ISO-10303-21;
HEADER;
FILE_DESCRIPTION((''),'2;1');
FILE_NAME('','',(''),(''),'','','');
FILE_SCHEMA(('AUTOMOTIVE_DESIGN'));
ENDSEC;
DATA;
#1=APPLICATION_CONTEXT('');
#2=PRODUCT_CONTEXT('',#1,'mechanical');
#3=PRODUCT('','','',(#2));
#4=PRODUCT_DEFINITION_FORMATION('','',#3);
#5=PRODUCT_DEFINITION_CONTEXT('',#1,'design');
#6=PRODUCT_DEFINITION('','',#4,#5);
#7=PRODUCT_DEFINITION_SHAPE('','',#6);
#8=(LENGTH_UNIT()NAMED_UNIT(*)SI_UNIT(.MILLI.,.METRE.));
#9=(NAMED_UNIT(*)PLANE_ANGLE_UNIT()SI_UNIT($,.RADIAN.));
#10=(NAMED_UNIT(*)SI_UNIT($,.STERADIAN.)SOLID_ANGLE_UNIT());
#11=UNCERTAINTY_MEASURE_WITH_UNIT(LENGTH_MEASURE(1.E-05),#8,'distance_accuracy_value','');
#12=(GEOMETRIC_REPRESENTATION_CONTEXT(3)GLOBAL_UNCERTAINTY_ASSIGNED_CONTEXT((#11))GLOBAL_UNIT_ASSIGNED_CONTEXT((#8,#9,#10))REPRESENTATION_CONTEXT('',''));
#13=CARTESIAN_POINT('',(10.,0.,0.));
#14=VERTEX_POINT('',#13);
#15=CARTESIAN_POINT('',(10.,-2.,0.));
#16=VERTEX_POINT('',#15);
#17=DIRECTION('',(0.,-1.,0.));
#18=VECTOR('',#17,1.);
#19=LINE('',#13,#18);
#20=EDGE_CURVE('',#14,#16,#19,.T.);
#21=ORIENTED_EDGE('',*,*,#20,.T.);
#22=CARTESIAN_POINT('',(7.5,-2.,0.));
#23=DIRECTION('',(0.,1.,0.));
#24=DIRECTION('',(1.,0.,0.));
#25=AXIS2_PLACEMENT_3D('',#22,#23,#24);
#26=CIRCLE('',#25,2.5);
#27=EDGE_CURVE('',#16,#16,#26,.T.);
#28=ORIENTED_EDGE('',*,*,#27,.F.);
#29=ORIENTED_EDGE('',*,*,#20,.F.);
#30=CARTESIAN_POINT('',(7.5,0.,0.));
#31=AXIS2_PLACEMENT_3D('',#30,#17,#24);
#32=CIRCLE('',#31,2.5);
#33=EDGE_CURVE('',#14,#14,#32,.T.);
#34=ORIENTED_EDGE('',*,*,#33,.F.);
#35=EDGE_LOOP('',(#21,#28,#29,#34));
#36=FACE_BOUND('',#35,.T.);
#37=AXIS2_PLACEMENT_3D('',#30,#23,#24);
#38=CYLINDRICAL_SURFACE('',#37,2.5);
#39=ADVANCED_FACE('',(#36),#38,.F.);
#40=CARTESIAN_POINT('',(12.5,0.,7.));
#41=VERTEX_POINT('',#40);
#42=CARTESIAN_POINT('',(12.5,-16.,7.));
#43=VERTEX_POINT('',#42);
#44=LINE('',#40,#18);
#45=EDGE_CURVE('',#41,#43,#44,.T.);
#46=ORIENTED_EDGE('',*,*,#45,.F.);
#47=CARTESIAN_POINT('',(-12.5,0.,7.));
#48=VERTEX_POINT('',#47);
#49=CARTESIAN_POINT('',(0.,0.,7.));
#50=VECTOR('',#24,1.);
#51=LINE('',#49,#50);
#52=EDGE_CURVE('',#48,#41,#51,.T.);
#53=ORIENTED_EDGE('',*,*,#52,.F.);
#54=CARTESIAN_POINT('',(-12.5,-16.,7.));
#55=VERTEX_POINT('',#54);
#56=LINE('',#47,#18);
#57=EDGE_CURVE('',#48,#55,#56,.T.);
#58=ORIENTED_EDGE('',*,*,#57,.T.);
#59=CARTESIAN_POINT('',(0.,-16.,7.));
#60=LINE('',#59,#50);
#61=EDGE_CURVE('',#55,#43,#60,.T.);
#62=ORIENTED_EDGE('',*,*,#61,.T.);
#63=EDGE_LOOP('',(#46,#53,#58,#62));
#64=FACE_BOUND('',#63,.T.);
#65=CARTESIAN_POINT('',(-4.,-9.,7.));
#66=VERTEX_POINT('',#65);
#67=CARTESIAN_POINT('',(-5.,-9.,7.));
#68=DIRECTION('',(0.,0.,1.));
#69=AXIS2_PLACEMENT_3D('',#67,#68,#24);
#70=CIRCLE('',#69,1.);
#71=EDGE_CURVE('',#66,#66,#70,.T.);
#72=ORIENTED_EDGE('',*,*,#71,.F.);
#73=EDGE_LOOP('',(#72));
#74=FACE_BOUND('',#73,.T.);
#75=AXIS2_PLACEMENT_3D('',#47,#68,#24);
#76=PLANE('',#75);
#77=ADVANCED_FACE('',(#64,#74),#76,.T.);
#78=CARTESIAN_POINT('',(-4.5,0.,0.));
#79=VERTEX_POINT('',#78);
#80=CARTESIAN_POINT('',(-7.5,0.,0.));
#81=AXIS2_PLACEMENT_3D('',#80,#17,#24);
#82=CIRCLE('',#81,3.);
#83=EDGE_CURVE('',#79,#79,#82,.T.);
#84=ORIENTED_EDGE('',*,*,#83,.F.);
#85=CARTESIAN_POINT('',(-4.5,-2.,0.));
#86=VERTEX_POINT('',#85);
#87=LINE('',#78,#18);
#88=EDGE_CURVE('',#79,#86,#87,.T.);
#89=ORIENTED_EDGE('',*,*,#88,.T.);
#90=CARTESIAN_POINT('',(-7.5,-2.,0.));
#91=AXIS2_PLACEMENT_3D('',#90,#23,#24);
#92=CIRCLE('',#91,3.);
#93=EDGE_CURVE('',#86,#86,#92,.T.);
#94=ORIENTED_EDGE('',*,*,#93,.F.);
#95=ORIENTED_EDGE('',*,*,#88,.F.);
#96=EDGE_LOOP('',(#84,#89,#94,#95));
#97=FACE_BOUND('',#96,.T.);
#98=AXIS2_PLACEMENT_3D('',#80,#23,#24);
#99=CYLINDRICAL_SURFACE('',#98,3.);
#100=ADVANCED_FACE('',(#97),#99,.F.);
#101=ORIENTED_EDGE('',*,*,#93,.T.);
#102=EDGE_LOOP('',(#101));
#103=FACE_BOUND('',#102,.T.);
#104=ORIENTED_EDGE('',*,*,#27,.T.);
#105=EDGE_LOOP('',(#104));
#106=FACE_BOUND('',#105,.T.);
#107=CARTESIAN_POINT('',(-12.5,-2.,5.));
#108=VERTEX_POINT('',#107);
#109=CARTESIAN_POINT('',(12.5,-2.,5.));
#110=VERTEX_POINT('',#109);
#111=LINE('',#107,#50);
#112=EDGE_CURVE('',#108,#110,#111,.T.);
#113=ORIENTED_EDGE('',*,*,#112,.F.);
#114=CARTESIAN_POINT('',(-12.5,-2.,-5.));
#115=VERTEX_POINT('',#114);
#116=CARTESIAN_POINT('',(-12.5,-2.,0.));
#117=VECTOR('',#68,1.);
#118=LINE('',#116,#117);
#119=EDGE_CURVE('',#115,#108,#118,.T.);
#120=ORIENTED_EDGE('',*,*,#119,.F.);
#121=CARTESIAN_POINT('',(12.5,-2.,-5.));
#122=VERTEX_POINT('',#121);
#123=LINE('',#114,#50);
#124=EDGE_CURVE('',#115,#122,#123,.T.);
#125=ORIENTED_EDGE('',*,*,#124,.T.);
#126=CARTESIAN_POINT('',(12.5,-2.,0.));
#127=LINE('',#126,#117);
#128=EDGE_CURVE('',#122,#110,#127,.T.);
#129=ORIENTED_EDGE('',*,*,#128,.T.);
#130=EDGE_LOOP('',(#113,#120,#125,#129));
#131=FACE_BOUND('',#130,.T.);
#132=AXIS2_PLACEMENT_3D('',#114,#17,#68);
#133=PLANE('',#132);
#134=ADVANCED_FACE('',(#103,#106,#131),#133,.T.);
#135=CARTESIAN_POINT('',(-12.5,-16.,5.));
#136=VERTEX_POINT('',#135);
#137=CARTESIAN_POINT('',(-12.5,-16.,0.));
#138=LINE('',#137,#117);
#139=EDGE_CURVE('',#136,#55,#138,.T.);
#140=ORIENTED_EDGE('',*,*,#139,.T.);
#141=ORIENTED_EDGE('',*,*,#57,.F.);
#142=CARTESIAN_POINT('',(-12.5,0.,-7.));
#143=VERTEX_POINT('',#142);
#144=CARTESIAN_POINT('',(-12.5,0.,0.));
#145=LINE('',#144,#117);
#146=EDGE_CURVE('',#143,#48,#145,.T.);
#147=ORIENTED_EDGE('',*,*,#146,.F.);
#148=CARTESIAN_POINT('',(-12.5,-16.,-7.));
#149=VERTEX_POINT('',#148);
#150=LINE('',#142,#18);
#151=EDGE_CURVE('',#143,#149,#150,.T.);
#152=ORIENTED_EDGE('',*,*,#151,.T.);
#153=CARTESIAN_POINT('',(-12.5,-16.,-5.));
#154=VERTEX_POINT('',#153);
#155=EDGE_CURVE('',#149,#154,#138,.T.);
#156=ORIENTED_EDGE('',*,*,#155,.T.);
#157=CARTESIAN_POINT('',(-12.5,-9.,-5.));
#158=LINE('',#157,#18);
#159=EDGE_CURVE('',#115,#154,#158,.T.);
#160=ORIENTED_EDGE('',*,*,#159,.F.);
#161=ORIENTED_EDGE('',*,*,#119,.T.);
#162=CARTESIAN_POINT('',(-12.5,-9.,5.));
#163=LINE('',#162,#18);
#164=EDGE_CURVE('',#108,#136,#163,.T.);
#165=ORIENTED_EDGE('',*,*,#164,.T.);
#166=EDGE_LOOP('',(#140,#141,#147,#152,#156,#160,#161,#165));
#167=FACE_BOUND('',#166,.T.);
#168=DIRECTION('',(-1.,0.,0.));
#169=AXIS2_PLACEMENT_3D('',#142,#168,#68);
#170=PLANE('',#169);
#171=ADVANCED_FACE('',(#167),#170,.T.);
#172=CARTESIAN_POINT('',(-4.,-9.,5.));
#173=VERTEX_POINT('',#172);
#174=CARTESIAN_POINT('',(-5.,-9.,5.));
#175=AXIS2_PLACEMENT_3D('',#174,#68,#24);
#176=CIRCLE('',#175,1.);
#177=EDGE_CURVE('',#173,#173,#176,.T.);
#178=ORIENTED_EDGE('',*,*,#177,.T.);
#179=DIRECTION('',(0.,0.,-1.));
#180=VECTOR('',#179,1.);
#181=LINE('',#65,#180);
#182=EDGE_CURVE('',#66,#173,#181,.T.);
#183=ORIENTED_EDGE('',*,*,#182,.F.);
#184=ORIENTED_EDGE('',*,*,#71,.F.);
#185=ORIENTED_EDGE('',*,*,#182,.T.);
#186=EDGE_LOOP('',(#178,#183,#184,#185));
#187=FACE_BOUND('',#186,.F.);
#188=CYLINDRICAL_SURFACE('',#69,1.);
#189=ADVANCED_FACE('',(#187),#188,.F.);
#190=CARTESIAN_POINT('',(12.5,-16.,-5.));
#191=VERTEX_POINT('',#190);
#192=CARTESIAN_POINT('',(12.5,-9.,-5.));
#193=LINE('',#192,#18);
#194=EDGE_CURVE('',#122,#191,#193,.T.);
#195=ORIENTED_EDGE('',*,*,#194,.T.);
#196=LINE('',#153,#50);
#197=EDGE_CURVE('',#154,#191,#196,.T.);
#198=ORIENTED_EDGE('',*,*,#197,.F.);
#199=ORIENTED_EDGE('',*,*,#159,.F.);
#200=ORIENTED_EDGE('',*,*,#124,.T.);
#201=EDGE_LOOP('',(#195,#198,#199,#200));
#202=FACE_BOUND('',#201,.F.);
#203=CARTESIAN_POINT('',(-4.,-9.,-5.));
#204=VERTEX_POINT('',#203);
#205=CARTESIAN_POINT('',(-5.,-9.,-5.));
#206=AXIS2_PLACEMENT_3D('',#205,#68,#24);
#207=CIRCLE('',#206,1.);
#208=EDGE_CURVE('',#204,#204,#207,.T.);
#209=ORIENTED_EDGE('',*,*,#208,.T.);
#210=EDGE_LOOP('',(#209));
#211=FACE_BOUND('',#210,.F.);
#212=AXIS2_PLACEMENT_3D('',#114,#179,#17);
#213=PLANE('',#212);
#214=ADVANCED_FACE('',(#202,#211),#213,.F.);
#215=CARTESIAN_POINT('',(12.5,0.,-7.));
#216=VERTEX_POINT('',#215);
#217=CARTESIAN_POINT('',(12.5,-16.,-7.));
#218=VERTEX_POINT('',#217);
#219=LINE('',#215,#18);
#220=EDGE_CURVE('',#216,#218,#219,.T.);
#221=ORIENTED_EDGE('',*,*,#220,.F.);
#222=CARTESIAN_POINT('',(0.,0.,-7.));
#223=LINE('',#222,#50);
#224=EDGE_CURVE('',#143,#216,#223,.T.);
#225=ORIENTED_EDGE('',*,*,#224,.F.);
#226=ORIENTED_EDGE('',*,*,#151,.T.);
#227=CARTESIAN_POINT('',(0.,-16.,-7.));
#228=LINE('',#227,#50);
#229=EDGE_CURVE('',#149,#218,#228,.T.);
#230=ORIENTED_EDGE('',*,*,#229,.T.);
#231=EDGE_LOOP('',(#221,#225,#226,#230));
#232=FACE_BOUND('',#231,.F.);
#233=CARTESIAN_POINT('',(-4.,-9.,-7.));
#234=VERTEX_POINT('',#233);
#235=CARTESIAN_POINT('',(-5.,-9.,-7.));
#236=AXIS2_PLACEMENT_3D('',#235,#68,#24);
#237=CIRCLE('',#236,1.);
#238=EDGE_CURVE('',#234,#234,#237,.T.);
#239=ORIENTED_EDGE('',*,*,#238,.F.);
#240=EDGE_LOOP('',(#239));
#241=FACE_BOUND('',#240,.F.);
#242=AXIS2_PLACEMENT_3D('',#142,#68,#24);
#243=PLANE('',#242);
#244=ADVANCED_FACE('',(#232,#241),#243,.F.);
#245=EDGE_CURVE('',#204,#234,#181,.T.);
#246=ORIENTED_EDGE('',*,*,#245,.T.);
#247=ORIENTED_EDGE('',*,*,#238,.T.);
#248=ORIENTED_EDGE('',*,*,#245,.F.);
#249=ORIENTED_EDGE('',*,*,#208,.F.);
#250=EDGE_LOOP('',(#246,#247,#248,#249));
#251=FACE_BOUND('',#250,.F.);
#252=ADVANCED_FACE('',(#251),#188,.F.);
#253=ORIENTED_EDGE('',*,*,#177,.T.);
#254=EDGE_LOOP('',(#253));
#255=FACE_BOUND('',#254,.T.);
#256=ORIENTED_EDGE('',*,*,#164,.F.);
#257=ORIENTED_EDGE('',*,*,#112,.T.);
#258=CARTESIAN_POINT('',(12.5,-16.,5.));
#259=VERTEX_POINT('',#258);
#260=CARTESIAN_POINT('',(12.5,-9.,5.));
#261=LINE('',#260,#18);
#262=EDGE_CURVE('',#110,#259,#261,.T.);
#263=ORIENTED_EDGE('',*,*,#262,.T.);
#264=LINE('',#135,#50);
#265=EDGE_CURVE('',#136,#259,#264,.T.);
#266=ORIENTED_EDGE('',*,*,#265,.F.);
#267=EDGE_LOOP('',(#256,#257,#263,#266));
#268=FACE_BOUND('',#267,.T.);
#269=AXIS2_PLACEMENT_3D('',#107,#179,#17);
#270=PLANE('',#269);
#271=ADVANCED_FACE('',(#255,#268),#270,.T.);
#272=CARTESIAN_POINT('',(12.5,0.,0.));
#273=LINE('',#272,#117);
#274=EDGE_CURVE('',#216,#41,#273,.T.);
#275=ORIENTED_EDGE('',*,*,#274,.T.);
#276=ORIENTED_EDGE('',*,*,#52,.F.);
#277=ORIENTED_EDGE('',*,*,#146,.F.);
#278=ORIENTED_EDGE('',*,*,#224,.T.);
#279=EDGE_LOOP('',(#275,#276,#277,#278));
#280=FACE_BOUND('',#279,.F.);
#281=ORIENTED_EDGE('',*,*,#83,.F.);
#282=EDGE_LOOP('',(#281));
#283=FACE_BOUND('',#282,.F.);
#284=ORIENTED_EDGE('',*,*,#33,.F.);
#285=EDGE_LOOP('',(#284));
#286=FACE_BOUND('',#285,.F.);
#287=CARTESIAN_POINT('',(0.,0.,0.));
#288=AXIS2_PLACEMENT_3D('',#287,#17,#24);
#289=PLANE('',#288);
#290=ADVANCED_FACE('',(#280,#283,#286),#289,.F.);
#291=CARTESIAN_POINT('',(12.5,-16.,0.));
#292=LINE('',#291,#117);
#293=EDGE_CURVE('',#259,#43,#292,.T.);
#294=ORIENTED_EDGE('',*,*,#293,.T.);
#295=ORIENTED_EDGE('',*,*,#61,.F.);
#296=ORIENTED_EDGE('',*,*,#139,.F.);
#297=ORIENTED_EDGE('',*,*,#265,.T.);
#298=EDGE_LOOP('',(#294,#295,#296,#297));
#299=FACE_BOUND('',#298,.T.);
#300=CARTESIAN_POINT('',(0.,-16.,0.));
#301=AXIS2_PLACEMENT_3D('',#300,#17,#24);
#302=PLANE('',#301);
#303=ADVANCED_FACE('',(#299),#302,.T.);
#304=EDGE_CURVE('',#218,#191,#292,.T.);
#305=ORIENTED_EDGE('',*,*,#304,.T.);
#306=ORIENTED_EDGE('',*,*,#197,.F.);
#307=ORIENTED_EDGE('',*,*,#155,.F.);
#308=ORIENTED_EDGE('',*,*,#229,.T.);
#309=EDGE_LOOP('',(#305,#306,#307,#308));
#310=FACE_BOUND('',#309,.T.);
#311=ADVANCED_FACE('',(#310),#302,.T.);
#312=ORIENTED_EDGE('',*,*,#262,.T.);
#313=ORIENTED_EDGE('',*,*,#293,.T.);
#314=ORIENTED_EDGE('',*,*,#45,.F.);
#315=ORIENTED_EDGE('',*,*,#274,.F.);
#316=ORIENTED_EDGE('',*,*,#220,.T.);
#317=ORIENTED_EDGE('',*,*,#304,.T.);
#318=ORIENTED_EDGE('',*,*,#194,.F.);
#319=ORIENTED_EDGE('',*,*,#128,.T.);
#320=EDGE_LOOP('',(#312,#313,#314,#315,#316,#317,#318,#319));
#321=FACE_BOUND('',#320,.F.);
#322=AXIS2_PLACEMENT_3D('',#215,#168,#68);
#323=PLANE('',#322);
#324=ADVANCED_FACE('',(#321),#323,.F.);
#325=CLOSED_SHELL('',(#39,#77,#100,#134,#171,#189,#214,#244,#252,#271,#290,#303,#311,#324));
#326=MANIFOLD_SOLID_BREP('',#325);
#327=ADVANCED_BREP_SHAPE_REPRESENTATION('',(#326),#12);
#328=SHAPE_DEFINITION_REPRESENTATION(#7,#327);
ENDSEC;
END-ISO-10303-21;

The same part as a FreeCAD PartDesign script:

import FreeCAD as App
import Part
import Sketcher

doc = App.newDocument("Part")
body = doc.addObject("PartDesign::Body", "Body")

sketch1 = body.newObject("Sketcher::SketchObject", "Sketch")
sketch1.AttachmentSupport = (doc.getObject("XZ_Plane"), [""])
sketch1.MapMode = "FlatFace"
sketch1.addGeometry([
    Part.LineSegment(App.Vector(-12.5, 7, 0), App.Vector(-12.5, -7, 0)),
    Part.LineSegment(App.Vector(-12.5, -7, 0), App.Vector(12.5, -7, 0)),
    Part.LineSegment(App.Vector(12.5, -7, 0), App.Vector(12.5, 7, 0)),
    Part.LineSegment(App.Vector(12.5, 7, 0), App.Vector(-12.5, 7, 0)),
    Part.Circle(App.Vector(-7.5, 0, 0), App.Vector(0, 0, 1), 3),
    Part.Circle(App.Vector(7.5, 0, 0), App.Vector(0, 0, 1), 2.5),
], False)
sketch1.addConstraint([
    Sketcher.Constraint("Coincident", 0, 2, 1, 1),
    Sketcher.Constraint("Coincident", 1, 2, 2, 1),
    Sketcher.Constraint("Coincident", 2, 2, 3, 1),
    Sketcher.Constraint("Coincident", 3, 2, 0, 1),
    Sketcher.Constraint("Vertical", 0),
    Sketcher.Constraint("Horizontal", 1),
    Sketcher.Constraint("Vertical", 2),
    Sketcher.Constraint("Horizontal", 3),
    Sketcher.Constraint("Symmetric", 4, 3, 5, 3, -1, 1),
    Sketcher.Constraint("Symmetric", 0, 2, 2, 2, -1, 1),
    Sketcher.Constraint("PointOnObject", 4, 3, -1),
    Sketcher.Constraint("Diameter", 4, 6.0),
    Sketcher.Constraint("Diameter", 5, 5.0),
    Sketcher.Constraint("DistanceX", 1, 1, 1, 2, 25.0),
    Sketcher.Constraint("DistanceY", 0, 2, 0, 1, 14.0),
    Sketcher.Constraint("DistanceX", 4, 3, 5, 3, 15.0),
])
pad1 = body.newObject("PartDesign::Pad", "Pad")
pad1.Profile = sketch1
pad1.Length = 16

sketch2 = body.newObject("Sketcher::SketchObject", "Sketch001")
sketch2.AttachmentSupport = (doc.getObject("XY_Plane"), [""])
sketch2.MapMode = "FlatFace"
sketch2.AttachmentOffset = App.Placement(App.Vector(0, 0, 7), App.Rotation())
sketch2.addGeometry(Part.Circle(App.Vector(-5, -9, 0), App.Vector(0, 0, 1), 1), False)
sketch2.addConstraint([
    Sketcher.Constraint("Diameter", 0, 2.0),
    Sketcher.Constraint("DistanceX", 0, 3, -1, 1, 5.0),
    Sketcher.Constraint("DistanceY", 0, 3, -1, 1, 9.0),
])
pocket1 = body.newObject("PartDesign::Pocket", "Pocket")
pocket1.Profile = sketch2
pocket1.Length = 25

sketch3 = body.newObject("Sketcher::SketchObject", "Sketch002")
sketch3.AttachmentSupport = (doc.getObject("YZ_Plane"), [""])
sketch3.MapMode = "FlatFace"
sketch3.AttachmentOffset = App.Placement(App.Vector(0, 0, -12.5), App.Rotation())
sketch3.addGeometry([
    Part.LineSegment(App.Vector(-2, 5, 0), App.Vector(-2, -5, 0)),
    Part.LineSegment(App.Vector(-2, -5, 0), App.Vector(-16, -5, 0)),
    Part.LineSegment(App.Vector(-16, -5, 0), App.Vector(-16, 5, 0)),
    Part.LineSegment(App.Vector(-16, 5, 0), App.Vector(-2, 5, 0)),
], False)
sketch3.addConstraint([
    Sketcher.Constraint("Coincident", 0, 2, 1, 1),
    Sketcher.Constraint("Coincident", 1, 2, 2, 1),
    Sketcher.Constraint("Coincident", 2, 2, 3, 1),
    Sketcher.Constraint("Coincident", 3, 2, 0, 1),
    Sketcher.Constraint("Vertical", 0),
    Sketcher.Constraint("Horizontal", 1),
    Sketcher.Constraint("Vertical", 2),
    Sketcher.Constraint("Horizontal", 3),
    Sketcher.Constraint("DistanceX", 1, 2, 1, 1, 14.0),
    Sketcher.Constraint("DistanceY", 0, 2, 0, 1, 10.0),
    Sketcher.Constraint("DistanceX", 0, 2, -1, 1, 2.0),
    Sketcher.Constraint("DistanceY", 0, 2, -1, 1, 5.0),
])
pocket2 = body.newObject("PartDesign::Pocket", "Pocket001")
pocket2.Profile = sketch3
pocket2.Length = 25
pocket2.Reversed = True

doc.recompute()
